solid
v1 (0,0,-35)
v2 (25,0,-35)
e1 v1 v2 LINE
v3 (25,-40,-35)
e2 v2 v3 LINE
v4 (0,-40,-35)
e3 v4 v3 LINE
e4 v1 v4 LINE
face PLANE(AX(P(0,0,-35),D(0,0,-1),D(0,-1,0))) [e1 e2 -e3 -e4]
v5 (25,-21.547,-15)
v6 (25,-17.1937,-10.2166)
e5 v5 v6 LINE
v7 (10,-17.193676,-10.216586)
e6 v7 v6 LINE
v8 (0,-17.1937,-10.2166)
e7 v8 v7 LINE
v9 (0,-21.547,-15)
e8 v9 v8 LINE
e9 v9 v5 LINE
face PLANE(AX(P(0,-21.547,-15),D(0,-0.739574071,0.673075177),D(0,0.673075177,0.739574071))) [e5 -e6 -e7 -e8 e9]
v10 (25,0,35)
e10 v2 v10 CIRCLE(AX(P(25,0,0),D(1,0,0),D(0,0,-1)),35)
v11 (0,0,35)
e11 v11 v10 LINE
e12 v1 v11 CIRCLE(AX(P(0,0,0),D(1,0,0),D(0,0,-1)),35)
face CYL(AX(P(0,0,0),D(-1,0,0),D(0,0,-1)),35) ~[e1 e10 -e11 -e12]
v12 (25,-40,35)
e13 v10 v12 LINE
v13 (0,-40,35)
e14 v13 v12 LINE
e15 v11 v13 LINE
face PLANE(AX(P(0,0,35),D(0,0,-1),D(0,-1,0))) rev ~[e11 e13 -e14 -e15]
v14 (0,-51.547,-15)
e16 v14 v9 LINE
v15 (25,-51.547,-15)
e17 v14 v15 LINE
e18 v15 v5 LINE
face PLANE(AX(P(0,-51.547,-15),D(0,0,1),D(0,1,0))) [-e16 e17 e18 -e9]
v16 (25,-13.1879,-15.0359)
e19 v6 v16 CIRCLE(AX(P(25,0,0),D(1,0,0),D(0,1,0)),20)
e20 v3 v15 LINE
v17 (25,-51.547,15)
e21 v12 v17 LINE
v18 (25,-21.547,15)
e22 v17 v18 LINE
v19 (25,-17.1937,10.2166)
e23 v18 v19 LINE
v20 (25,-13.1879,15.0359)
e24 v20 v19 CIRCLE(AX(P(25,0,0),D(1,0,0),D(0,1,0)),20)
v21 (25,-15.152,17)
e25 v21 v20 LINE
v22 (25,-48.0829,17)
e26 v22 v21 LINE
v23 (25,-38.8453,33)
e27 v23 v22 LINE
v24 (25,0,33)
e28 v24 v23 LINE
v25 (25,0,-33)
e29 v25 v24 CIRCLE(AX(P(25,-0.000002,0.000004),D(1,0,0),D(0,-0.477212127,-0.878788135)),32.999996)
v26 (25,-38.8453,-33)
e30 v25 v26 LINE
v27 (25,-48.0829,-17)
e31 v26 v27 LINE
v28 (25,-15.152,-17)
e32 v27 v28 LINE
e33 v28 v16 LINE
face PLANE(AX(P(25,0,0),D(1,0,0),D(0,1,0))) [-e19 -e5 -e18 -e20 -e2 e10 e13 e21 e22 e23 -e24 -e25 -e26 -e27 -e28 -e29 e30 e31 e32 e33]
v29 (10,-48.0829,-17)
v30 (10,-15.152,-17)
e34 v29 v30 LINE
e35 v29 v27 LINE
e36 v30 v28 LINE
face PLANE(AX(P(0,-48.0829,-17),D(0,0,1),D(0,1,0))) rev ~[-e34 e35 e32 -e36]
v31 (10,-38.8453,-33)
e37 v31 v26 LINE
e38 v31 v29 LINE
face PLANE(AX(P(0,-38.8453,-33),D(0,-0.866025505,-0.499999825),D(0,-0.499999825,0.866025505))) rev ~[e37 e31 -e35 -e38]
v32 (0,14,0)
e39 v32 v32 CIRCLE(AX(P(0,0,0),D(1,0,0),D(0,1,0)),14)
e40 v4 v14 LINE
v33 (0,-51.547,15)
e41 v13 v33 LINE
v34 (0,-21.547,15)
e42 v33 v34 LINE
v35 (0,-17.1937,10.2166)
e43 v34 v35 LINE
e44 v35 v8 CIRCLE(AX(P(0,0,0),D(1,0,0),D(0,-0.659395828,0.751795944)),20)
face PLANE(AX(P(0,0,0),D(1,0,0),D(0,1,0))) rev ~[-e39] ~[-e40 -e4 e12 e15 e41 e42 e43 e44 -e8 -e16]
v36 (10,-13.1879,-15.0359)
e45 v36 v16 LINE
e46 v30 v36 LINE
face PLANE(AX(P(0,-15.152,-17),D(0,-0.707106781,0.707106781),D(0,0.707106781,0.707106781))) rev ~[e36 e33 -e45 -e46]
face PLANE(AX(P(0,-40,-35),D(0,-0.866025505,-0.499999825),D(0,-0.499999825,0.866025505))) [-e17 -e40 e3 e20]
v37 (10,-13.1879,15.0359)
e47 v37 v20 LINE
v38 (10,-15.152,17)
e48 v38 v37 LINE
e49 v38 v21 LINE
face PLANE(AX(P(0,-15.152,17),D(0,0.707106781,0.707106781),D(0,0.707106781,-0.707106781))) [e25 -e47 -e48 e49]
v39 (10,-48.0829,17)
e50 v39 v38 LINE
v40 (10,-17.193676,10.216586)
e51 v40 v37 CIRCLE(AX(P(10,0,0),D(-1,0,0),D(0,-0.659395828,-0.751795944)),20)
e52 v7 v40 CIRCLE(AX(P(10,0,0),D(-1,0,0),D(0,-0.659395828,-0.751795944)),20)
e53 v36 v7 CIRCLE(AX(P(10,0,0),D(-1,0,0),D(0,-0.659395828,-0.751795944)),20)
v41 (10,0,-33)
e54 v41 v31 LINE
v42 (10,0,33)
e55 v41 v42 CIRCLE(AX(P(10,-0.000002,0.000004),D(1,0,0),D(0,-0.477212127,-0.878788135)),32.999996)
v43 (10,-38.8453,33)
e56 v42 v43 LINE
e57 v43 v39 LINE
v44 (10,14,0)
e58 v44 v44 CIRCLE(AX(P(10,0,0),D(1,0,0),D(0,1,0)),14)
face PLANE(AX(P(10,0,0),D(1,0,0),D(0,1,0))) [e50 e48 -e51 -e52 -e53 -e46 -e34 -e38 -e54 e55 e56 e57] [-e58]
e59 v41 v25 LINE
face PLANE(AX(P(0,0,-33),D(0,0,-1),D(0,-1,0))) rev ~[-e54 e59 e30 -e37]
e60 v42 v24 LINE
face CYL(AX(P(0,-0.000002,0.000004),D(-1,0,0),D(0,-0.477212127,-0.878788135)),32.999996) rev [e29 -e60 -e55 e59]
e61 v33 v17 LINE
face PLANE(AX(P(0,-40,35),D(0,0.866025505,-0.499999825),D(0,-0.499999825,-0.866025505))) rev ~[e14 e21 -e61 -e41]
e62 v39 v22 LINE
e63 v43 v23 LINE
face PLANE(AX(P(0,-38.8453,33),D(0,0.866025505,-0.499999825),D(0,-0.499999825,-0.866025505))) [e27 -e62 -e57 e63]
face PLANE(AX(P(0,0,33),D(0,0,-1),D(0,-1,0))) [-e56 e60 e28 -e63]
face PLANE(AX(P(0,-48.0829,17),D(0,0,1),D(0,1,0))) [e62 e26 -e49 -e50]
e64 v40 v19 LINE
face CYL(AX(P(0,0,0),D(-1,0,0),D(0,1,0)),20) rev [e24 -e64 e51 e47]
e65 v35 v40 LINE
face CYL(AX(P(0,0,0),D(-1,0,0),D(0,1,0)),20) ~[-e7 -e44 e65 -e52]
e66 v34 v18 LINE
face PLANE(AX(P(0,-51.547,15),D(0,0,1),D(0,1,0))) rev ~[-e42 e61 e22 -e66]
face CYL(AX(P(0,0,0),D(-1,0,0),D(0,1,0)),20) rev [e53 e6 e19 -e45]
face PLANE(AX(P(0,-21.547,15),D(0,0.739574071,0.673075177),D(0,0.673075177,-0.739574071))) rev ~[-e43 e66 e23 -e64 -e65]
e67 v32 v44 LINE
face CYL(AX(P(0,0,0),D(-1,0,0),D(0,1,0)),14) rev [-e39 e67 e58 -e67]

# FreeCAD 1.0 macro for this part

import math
import FreeCAD as App
import Part
import Sketcher
Q = App.Units.Quantity

doc = App.newDocument("Part")
body = doc.addObject("PartDesign::Body", "Body")

# Sketch on YZ plane
sketch1 = body.newObject("Sketcher::SketchObject", "Sketch")
sketch1.AttachmentSupport = (doc.getObject("YZ_Plane"), [""])
sketch1.MapMode = "FlatFace"
sketch1.addGeometry([
    Part.LineSegment(App.Vector(-40, -35, 0), App.Vector(0, -35, 0)),  # 0
    Part.ArcOfCircle(Part.Circle(App.Vector(0, 0, 0), App.Vector(0, 0, 1), 35), math.radians(-90), math.radians(90)),  # 1
    Part.LineSegment(App.Vector(0, 35, 0), App.Vector(-40, 35, 0)),  # 2
    Part.LineSegment(App.Vector(-40, 35, 0), App.Vector(-51.5, 15, 0)),  # 3
    Part.LineSegment(App.Vector(-51.5, 15, 0), App.Vector(-21.5, 15, 0)),  # 4
    Part.LineSegment(App.Vector(-21.5, 15, 0), App.Vector(-17.2, 10.2, 0)),  # 5
    Part.ArcOfCircle(Part.Circle(App.Vector(0, 0, 0), App.Vector(0, 0, 1), 20), math.radians(131.25), math.radians(149.28)),  # 6
    Part.LineSegment(App.Vector(-13.2, 15, 0), App.Vector(-15.2, 17, 0)),  # 7
    Part.LineSegment(App.Vector(-15.2, 17, 0), App.Vector(-48.1, 17, 0)),  # 8
    Part.LineSegment(App.Vector(-48.1, 17, 0), App.Vector(-38.8, 33, 0)),  # 9
    Part.LineSegment(App.Vector(-38.8, 33, 0), App.Vector(0, 33, 0)),  # 10
    Part.ArcOfCircle(Part.Circle(App.Vector(0, 0, 0), App.Vector(0, 0, 1), 33), math.radians(-90), math.radians(90)),  # 11
    Part.LineSegment(App.Vector(0, -33, 0), App.Vector(-38.8, -33, 0)),  # 12
    Part.LineSegment(App.Vector(-38.8, -33, 0), App.Vector(-48.1, -17, 0)),  # 13
    Part.LineSegment(App.Vector(-48.1, -17, 0), App.Vector(-15.2, -17, 0)),  # 14
    Part.LineSegment(App.Vector(-15.2, -17, 0), App.Vector(-13.2, -15, 0)),  # 15
    Part.ArcOfCircle(Part.Circle(App.Vector(0, 0, 0), App.Vector(0, 0, 1), 20), math.radians(-149.28), math.radians(-131.25)),  # 16
    Part.LineSegment(App.Vector(-17.2, -10.2, 0), App.Vector(-21.5, -15, 0)),  # 17
    Part.LineSegment(App.Vector(-21.5, -15, 0), App.Vector(-51.5, -15, 0)),  # 18
    Part.LineSegment(App.Vector(-51.5, -15, 0), App.Vector(-40, -35, 0)),  # 19
], False)
sketch1.addConstraint([
    Sketcher.Constraint("Tangent", 0, 2, 1, 1),
    Sketcher.Constraint("Tangent", 1, 2, 2, 1),
    Sketcher.Constraint("Coincident", 2, 2, 3, 1),
    Sketcher.Constraint("Coincident", 3, 2, 4, 1),
    Sketcher.Constraint("Coincident", 4, 2, 5, 1),
    Sketcher.Constraint("Coincident", 5, 2, 6, 2),
    Sketcher.Constraint("Coincident", 6, 1, 7, 1),
    Sketcher.Constraint("Coincident", 7, 2, 8, 1),
    Sketcher.Constraint("Coincident", 8, 2, 9, 1),
    Sketcher.Constraint("Coincident", 9, 2, 10, 1),
    Sketcher.Constraint("Tangent", 10, 2, 11, 2),
    Sketcher.Constraint("Tangent", 11, 1, 12, 1),
    Sketcher.Constraint("Coincident", 12, 2, 13, 1),
    Sketcher.Constraint("Coincident", 13, 2, 14, 1),
    Sketcher.Constraint("Coincident", 14, 2, 15, 1),
    Sketcher.Constraint("Coincident", 15, 2, 16, 2),
    Sketcher.Constraint("Coincident", 16, 1, 17, 1),
    Sketcher.Constraint("Coincident", 17, 2, 18, 1),
    Sketcher.Constraint("Coincident", 18, 2, 19, 1),
    Sketcher.Constraint("Coincident", 19, 2, 0, 1),
    Sketcher.Constraint("Horizontal", 0),
    Sketcher.Constraint("Horizontal", 2),
    Sketcher.Constraint("Horizontal", 4),
    Sketcher.Constraint("Horizontal", 8),
    Sketcher.Constraint("Horizontal", 10),
    Sketcher.Constraint("Horizontal", 12),
    Sketcher.Constraint("Horizontal", 14),
    Sketcher.Constraint("Horizontal", 18),
    Sketcher.Constraint("Coincident", 1, 3, -1, 1),
    Sketcher.Constraint("Coincident", 6, 3, -1, 1),
    Sketcher.Constraint("Coincident", 11, 3, -1, 1),
    Sketcher.Constraint("Coincident", 16, 3, -1, 1),
    Sketcher.Constraint("Equal", 6, 16),
    Sketcher.Constraint("Symmetric", 8, 2, 13, 2, -1),
    Sketcher.Constraint("Symmetric", 4, 2, 17, 2, -1),
    Sketcher.Constraint("Parallel", 3, 9),
    Sketcher.Constraint("Perpendicular", 7, 15),
    Sketcher.Constraint("Parallel", 13, 19),
    Sketcher.Constraint("Vertical", 9, 2, 12, 2),
    Sketcher.Constraint("Vertical", 7, 2, 14, 2),
    Sketcher.Constraint("Vertical", 6, 1, 15, 2),
    Sketcher.Constraint("Vertical", 5, 2, 16, 1),
    Sketcher.Constraint("Vertical", 3, 2, 18, 2),
    Sketcher.Constraint("Radius", 1, Q("35 mm")),
    Sketcher.Constraint("Radius", 6, Q("20 mm")),
    Sketcher.Constraint("DistanceX", 0, 1, 0, 2, Q("40 mm")),
    Sketcher.Constraint("DistanceX", 4, 1, 4, 2, Q("30 mm")),
    Sketcher.Constraint("DistanceY", -1, 1, 3, 2, Q("15 mm")),
    Sketcher.Constraint("Radius", 11, Q("33 mm")),
    Sketcher.Constraint("DistanceY", 4, 2, 7, 2, Q("2 mm")),
    Sketcher.Constraint("Angle", 3, Q("-120 deg")),
    Sketcher.Constraint("DistanceX", 8, 2, 8, 1, Q("32.931 mm")),
    Sketcher.Constraint("DistanceX", 10, 1, 10, 2, Q("38.8453 mm")),
    Sketcher.Constraint("Distance", 5, Q("6.4678 mm")),
])
pad1 = body.newObject("PartDesign::Pad", "Pad")
pad1.Profile = sketch1
pad1.Length = 25

# Sketch on YZ plane
sketch2 = body.newObject("Sketcher::SketchObject", "Sketch001")
sketch2.AttachmentSupport = (doc.getObject("YZ_Plane"), [""])
sketch2.MapMode = "FlatFace"
sketch2.addGeometry([
    Part.LineSegment(App.Vector(-13.2, -15, 0), App.Vector(-15.2, -17, 0)),  # 0
    Part.LineSegment(App.Vector(-15.2, -17, 0), App.Vector(-48.1, -17, 0)),  # 1
    Part.LineSegment(App.Vector(-48.1, -17, 0), App.Vector(-38.8, -33, 0)),  # 2
    Part.LineSegment(App.Vector(-38.8, -33, 0), App.Vector(0, -33, 0)),  # 3
    Part.ArcOfCircle(Part.Circle(App.Vector(0, 0, 0), App.Vector(0, 0, 1), 33), math.radians(-90), math.radians(90)),  # 4
    Part.LineSegment(App.Vector(0, 33, 0), App.Vector(-38.8, 33, 0)),  # 5
    Part.LineSegment(App.Vector(-38.8, 33, 0), App.Vector(-48.1, 17, 0)),  # 6
    Part.LineSegment(App.Vector(-48.1, 17, 0), App.Vector(-15.2, 17, 0)),  # 7
    Part.LineSegment(App.Vector(-15.2, 17, 0), App.Vector(-13.2, 15, 0)),  # 8
    Part.ArcOfCircle(Part.Circle(App.Vector(0, 0, 0), App.Vector(0, 0, 1), 20), math.radians(131), math.radians(229)),  # 9
    Part.Circle(App.Vector(0, 0, 0), App.Vector(0, 0, 1), 14),  # 10
], False)
sketch2.addConstraint([
    Sketcher.Constraint("Coincident", 0, 2, 1, 1),
    Sketcher.Constraint("Coincident", 1, 2, 2, 1),
    Sketcher.Constraint("Coincident", 2, 2, 3, 1),
    Sketcher.Constraint("Tangent", 3, 2, 4, 1),
    Sketcher.Constraint("Tangent", 4, 2, 5, 1),
    Sketcher.Constraint("Coincident", 5, 2, 6, 1),
    Sketcher.Constraint("Coincident", 6, 2, 7, 1),
    Sketcher.Constraint("Coincident", 7, 2, 8, 1),
    Sketcher.Constraint("Coincident", 8, 2, 9, 1),
    Sketcher.Constraint("Coincident", 9, 2, 0, 1),
    Sketcher.Constraint("Horizontal", 1),
    Sketcher.Constraint("Horizontal", 3),
    Sketcher.Constraint("Horizontal", 5),
    Sketcher.Constraint("Horizontal", 7),
    Sketcher.Constraint("Coincident", 4, 3, -1, 1),
    Sketcher.Constraint("Coincident", 9, 3, -1, 1),
    Sketcher.Constraint("Coincident", 10, 3, -1, 1),
    Sketcher.Constraint("Symmetric", 1, 2, 6, 2, -1),
    Sketcher.Constraint("Perpendicular", 0, 8),
    Sketcher.Constraint("Vertical", 2, 2, 5, 2),
    Sketcher.Constraint("Vertical", 0, 2, 7, 2),
    Sketcher.Constraint("Vertical", 8, 2, 9, 2),
    Sketcher.Constraint("Radius", 9, Q("20 mm")),
    Sketcher.Constraint("Diameter", 10, Q("28 mm")),
    Sketcher.Constraint("Radius", 4, Q("33 mm")),
    Sketcher.Constraint("Angle", 2, Q("-60 deg")),
    Sketcher.Constraint("DistanceY", 0, 2, -1, 1, Q("17 mm")),
    Sketcher.Constraint("DistanceX", 1, 2, 1, 1, Q("32.931 mm")),
    Sketcher.Constraint("DistanceX", 3, 1, 3, 2, Q("38.8453 mm")),
])
pad2 = body.newObject("PartDesign::Pad", "Pad001")
pad2.Profile = sketch2
pad2.Length = 10

doc.recompute()
